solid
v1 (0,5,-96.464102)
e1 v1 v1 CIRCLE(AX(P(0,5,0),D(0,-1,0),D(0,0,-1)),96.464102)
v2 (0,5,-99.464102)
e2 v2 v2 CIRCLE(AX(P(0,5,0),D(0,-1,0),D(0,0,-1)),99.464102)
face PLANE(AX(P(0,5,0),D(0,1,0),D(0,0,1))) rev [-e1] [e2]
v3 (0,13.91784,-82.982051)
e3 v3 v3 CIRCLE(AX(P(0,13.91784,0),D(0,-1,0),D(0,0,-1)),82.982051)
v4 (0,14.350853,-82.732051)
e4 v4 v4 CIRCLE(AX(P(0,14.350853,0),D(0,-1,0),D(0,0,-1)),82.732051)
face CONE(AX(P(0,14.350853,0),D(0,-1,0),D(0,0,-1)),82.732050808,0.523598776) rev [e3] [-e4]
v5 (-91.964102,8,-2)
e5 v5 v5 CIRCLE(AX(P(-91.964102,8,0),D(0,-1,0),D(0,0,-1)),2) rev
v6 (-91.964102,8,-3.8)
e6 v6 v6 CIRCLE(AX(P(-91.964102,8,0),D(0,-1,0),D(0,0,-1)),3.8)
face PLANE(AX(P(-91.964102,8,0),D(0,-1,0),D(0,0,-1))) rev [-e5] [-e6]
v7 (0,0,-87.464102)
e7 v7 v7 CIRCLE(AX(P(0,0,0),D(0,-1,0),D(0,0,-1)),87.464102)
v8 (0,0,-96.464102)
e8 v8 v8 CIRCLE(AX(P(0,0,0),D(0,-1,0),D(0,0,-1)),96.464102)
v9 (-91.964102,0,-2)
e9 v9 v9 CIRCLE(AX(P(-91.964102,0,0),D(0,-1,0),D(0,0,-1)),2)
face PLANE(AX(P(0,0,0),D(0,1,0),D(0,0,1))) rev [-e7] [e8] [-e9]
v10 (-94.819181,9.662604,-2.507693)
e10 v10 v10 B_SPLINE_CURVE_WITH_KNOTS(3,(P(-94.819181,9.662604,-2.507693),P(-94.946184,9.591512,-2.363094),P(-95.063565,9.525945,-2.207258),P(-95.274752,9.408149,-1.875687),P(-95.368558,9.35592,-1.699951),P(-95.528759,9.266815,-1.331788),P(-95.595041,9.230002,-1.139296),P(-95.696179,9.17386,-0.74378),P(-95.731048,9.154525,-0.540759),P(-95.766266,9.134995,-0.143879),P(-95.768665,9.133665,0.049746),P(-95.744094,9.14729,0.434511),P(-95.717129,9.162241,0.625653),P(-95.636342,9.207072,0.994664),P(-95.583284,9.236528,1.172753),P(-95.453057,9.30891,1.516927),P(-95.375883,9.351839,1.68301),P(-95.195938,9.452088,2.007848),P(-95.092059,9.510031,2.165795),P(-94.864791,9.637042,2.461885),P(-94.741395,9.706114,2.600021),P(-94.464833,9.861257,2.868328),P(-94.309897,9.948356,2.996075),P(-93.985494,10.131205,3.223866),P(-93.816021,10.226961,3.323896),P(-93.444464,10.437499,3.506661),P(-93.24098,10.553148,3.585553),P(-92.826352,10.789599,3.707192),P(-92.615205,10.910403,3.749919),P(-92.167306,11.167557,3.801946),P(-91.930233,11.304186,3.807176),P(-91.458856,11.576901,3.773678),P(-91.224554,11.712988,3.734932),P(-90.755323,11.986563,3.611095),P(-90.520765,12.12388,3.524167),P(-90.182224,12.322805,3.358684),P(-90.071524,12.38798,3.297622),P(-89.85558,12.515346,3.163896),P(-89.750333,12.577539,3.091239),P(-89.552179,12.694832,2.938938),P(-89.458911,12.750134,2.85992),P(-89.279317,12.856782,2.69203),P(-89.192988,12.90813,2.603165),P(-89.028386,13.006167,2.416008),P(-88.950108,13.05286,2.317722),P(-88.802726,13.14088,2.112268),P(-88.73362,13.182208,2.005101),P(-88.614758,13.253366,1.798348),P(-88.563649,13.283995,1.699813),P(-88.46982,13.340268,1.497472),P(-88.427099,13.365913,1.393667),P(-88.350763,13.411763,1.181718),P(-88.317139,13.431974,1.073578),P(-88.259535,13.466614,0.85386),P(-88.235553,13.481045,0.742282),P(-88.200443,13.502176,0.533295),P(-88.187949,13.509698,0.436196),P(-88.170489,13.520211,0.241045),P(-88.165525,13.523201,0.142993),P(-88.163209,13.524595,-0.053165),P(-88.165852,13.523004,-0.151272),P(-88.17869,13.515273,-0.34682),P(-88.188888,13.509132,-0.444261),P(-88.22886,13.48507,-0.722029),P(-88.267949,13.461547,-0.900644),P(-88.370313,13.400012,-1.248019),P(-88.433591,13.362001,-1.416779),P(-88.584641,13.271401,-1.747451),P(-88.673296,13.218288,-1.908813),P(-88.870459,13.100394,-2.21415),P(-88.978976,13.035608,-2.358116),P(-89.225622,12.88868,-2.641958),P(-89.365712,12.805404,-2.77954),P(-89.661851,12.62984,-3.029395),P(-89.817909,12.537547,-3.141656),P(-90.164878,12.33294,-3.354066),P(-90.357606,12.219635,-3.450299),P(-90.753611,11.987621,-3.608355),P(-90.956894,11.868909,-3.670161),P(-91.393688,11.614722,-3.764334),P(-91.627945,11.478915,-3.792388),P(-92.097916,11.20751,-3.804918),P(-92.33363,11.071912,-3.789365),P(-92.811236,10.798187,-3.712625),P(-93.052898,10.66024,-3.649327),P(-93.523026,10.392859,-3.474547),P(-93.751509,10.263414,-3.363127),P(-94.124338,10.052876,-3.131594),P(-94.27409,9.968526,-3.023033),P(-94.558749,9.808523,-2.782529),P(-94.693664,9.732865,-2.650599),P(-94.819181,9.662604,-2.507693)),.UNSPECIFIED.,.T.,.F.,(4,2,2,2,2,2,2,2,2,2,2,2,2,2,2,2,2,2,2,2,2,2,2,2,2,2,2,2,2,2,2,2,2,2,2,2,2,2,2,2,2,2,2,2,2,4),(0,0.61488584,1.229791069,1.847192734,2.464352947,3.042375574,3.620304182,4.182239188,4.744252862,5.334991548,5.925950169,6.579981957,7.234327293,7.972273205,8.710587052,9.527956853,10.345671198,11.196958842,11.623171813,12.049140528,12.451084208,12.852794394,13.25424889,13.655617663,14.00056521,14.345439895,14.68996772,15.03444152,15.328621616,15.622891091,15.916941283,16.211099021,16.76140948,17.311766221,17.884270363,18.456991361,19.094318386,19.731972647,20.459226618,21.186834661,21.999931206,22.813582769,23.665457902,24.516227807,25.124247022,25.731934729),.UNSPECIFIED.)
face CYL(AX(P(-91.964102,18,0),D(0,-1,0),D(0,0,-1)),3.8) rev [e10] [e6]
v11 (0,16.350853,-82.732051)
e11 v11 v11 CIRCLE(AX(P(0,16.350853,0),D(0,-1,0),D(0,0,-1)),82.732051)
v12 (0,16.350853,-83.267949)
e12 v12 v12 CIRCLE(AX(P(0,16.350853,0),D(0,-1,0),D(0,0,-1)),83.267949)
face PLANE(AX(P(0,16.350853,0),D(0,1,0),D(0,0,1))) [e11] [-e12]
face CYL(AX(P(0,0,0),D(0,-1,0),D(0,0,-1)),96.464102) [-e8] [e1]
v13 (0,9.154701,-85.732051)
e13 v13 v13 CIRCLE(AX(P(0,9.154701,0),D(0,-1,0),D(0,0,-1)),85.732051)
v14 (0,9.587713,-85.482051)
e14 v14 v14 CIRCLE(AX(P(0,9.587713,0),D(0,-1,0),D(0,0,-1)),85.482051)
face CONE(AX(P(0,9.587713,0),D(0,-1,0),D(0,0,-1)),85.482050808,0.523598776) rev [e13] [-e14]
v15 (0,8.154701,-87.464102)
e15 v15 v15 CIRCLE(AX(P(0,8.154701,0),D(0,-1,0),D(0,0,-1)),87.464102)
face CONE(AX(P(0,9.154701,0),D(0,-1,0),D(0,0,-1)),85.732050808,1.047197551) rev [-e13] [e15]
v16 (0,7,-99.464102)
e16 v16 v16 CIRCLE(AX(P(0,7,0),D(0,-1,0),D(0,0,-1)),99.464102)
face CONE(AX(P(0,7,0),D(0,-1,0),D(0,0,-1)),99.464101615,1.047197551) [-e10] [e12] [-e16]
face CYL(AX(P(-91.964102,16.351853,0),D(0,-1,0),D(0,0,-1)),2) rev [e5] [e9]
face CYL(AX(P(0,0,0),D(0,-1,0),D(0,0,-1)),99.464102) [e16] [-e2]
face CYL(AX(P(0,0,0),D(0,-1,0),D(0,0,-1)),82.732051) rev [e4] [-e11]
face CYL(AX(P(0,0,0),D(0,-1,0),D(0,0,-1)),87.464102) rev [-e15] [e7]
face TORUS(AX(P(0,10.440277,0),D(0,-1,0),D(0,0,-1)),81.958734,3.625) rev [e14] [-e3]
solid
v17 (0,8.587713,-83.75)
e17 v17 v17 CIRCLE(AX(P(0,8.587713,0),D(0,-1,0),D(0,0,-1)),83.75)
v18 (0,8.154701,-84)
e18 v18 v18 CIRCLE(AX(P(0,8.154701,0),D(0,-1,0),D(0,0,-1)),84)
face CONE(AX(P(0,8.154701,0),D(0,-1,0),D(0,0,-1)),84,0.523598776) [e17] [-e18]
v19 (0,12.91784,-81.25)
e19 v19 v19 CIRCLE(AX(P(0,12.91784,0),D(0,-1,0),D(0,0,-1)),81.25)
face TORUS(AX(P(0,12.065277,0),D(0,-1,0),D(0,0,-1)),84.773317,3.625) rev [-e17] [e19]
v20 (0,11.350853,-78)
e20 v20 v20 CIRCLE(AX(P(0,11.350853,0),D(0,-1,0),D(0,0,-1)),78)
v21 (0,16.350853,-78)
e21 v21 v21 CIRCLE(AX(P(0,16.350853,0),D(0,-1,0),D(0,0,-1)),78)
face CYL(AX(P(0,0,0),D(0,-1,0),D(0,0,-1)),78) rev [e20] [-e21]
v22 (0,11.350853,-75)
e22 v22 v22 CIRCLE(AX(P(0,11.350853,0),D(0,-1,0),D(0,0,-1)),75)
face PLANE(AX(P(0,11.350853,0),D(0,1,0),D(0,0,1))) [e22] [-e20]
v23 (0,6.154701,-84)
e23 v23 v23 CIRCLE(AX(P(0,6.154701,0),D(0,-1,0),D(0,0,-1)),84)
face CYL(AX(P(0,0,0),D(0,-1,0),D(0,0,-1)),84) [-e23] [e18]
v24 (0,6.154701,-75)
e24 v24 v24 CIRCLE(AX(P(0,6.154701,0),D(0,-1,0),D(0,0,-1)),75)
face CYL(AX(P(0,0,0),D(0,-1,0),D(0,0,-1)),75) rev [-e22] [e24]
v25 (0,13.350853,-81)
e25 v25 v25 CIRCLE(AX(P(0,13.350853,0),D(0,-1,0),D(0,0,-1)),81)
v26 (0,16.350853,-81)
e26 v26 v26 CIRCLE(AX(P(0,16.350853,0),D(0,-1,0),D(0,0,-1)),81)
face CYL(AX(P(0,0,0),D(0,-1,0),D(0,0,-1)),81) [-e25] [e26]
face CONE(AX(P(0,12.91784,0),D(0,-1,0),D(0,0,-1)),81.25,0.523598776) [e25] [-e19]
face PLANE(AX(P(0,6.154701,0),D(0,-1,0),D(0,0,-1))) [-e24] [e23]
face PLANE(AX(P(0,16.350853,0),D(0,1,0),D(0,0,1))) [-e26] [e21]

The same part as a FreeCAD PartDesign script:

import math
import FreeCAD as App
import Part
import Sketcher
from FreeCAD import Vector
Q = App.Units.Quantity

doc = App.newDocument("Part")
body = doc.addObject("PartDesign::Body", "Body")

# Sketch on XY plane
sketch1 = body.newObject("Sketcher::SketchObject", "Sketch")
sketch1.AttachmentSupport = (doc.getObject("XY_Plane"), [""])
sketch1.MapMode = "FlatFace"
sketch1.addGeometry(Part.LineSegment(Vector(-83.3, 16.4, 0), Vector(-99.5, 7, 0)), False)
sketch1.addGeometry(Part.LineSegment(Vector(-99.5, 7, 0), Vector(-99.5, 5, 0)), False)
sketch1.addGeometry(Part.LineSegment(Vector(-99.5, 5, 0), Vector(-96.5, 5, 0)), False)
sketch1.addGeometry(Part.LineSegment(Vector(-96.5, 5, 0), Vector(-96.5, 0, 0)), False)
sketch1.addGeometry(Part.LineSegment(Vector(-96.5, 0, 0), Vector(-87.5, 0, 0)), False)
sketch1.addGeometry(Part.LineSegment(Vector(-87.5, 0, 0), Vector(-87.5, 8.2, 0)), False)
sketch1.addGeometry(Part.LineSegment(Vector(-87.5, 8.2, 0), Vector(-85.7, 9.2, 0)), False)
sketch1.addGeometry(Part.LineSegment(Vector(-85.7, 9.2, 0), Vector(-85.5, 9.6, 0)), False)
sketch1.addGeometry(Part.ArcOfCircle(Part.Circle(Vector(-82, 10.4, 0), Vector(0, 0, 1), 3.6), math.radians(106), math.radians(194)), False)
sketch1.addGeometry(Part.LineSegment(Vector(-83, 13.9, 0), Vector(-82.7, 14.4, 0)), False)
sketch1.addGeometry(Part.LineSegment(Vector(-82.7, 14.4, 0), Vector(-82.7, 16.4, 0)), False)
sketch1.addGeometry(Part.LineSegment(Vector(-82.7, 16.4, 0), Vector(-83.3, 16.4, 0)), False)
sketch1.addConstraint(Sketcher.Constraint("Coincident", 0, 2, 1, 1))
sketch1.addConstraint(Sketcher.Constraint("Coincident", 1, 2, 2, 1))
sketch1.addConstraint(Sketcher.Constraint("Coincident", 2, 2, 3, 1))
sketch1.addConstraint(Sketcher.Constraint("Coincident", 3, 2, 4, 1))
sketch1.addConstraint(Sketcher.Constraint("Coincident", 4, 2, 5, 1))
sketch1.addConstraint(Sketcher.Constraint("Coincident", 5, 2, 6, 1))
sketch1.addConstraint(Sketcher.Constraint("Coincident", 6, 2, 7, 1))
sketch1.addConstraint(Sketcher.Constraint("Coincident", 7, 2, 8, 2))
sketch1.addConstraint(Sketcher.Constraint("Coincident", 8, 1, 9, 1))
sketch1.addConstraint(Sketcher.Constraint("Coincident", 9, 2, 10, 1))
sketch1.addConstraint(Sketcher.Constraint("Coincident", 10, 2, 11, 1))
sketch1.addConstraint(Sketcher.Constraint("Coincident", 11, 2, 0, 1))
sketch1.addConstraint(Sketcher.Constraint("Vertical", 1))
sketch1.addConstraint(Sketcher.Constraint("Horizontal", 2))
sketch1.addConstraint(Sketcher.Constraint("Vertical", 3))
sketch1.addConstraint(Sketcher.Constraint("Horizontal", 4))
sketch1.addConstraint(Sketcher.Constraint("Vertical", 5))
sketch1.addConstraint(Sketcher.Constraint("Vertical", 10))
sketch1.addConstraint(Sketcher.Constraint("Horizontal", 11))
sketch1.addConstraint(Sketcher.Constraint("PointOnObject", 3, 2, -1))
sketch1.addConstraint(Sketcher.Constraint("Parallel", 0, 6))
sketch1.addConstraint(Sketcher.Constraint("Parallel", 7, 9))
sketch1.addConstraint(Sketcher.Constraint("Equal", 1, 10))
sketch1.addConstraint(Sketcher.Constraint("Equal", 7, 9))
sketch1.addConstraint(Sketcher.Constraint("DistanceX", 2, 1, 2, 2, 3.0))
sketch1.addConstraint(Sketcher.Constraint("DistanceX", 4, 1, 4, 2, 9.0))
sketch1.addConstraint(Sketcher.Constraint("DistanceY", 1, 2, 1, 1, 2.0))
sketch1.addConstraint(Sketcher.Constraint("DistanceY", 3, 2, 3, 1, 5.0))
sketch1.addConstraint(Sketcher.Constraint("Angle", 0, Q("-150 deg")))
sketch1.addConstraint(Sketcher.Constraint("Angle", 7, Q("60 deg")))
sketch1.addConstraint(Sketcher.Constraint("Distance", 6, 2.0))
sketch1.addConstraint(Sketcher.Constraint("Radius", 8, 3.625))
sketch1.addConstraint(Sketcher.Constraint("DistanceX", 6, 2, 9, 2, 3.0))
sketch1.addConstraint(Sketcher.Constraint("Distance", 7, 0.5))
sketch1.addConstraint(Sketcher.Constraint("DistanceX", 11, 2, 11, 1, 0.535898))
sketch1.addConstraint(Sketcher.Constraint("DistanceY", 5, 1, 5, 2, 8.154701))
sketch1.addConstraint(Sketcher.Constraint("DistanceX", 0, 2, -1, 1, 99.464102))
revolution = body.newObject("PartDesign::Revolution", "Revolution")
revolution.Profile = sketch1
revolution.ReferenceAxis = (sketch1, ["V_Axis"])
revolution.Angle = 360

# Sketch on XZ plane
sketch2 = body.newObject("Sketcher::SketchObject", "Sketch001")
sketch2.AttachmentSupport = (doc.getObject("XZ_Plane"), [""])
sketch2.MapMode = "FlatFace"
sketch2.addGeometry(Part.Circle(Vector(-92, 0, 0), Vector(0, 0, 1), 2), False)
sketch2.addConstraint(Sketcher.Constraint("PointOnObject", 0, 3, -1))
sketch2.addConstraint(Sketcher.Constraint("Diameter", 0, 4.0))
sketch2.addConstraint(Sketcher.Constraint("DistanceX", 0, 3, -1, 1, 91.964102))
pocket1 = body.newObject("PartDesign::Pocket", "Pocket")
pocket1.Profile = sketch2
pocket1.Type = "UpToFirst"

# Sketch on XZ plane
sketch3 = body.newObject("Sketcher::SketchObject", "Sketch002")
sketch3.AttachmentSupport = (doc.getObject("XZ_Plane"), [""])
sketch3.MapMode = "FlatFace"
sketch3.AttachmentOffset = App.Placement(Vector(0, 0, -8), App.Rotation())
sketch3.addGeometry(Part.Circle(Vector(-92, 0, 0), Vector(0, 0, 1), 3.8), False)
sketch3.addConstraint(Sketcher.Constraint("PointOnObject", 0, 3, -1))
sketch3.addConstraint(Sketcher.Constraint("Diameter", 0, 7.6))
sketch3.addConstraint(Sketcher.Constraint("DistanceX", 0, 3, -1, 1, 91.964102))
pocket2 = body.newObject("PartDesign::Pocket", "Pocket001")
pocket2.Profile = sketch3
pocket2.Length = 10
body2 = doc.addObject("PartDesign::Body", "Body001")

# Sketch on XY plane
sketch4 = body2.newObject("Sketcher::SketchObject", "Sketch003")
sketch4.AttachmentSupport = (doc.getObject("XY_Plane001"), [""])
sketch4.MapMode = "FlatFace"
sketch4.addGeometry(Part.LineSegment(Vector(-83.8, 8.6, 0), Vector(-84, 8.2, 0)), False)
sketch4.addGeometry(Part.LineSegment(Vector(-84, 8.2, 0), Vector(-84, 6.2, 0)), False)
sketch4.addGeometry(Part.LineSegment(Vector(-84, 6.2, 0), Vector(-75, 6.2, 0)), False)
sketch4.addGeometry(Part.LineSegment(Vector(-75, 6.2, 0), Vector(-75, 11.4, 0)), False)
sketch4.addGeometry(Part.LineSegment(Vector(-75, 11.4, 0), Vector(-78, 11.4, 0)), False)
sketch4.addGeometry(Part.LineSegment(Vector(-78, 11.4, 0), Vector(-78, 16.4, 0)), False)
sketch4.addGeometry(Part.LineSegment(Vector(-78, 16.4, 0), Vector(-81, 16.4, 0)), False)
sketch4.addGeometry(Part.LineSegment(Vector(-81, 16.4, 0), Vector(-81, 13.4, 0)), False)
sketch4.addGeometry(Part.LineSegment(Vector(-81, 13.4, 0), Vector(-81.2, 12.9, 0)), False)
sketch4.addGeometry(Part.ArcOfCircle(Part.Circle(Vector(-84.8, 12.1, 0), Vector(0, 0, 1), 3.6), math.radians(-74), math.radians(14)), False)
sketch4.addConstraint(Sketcher.Constraint("Coincident", 0, 2, 1, 1))
sketch4.addConstraint(Sketcher.Constraint("Coincident", 1, 2, 2, 1))
sketch4.addConstraint(Sketcher.Constraint("Coincident", 2, 2, 3, 1))
sketch4.addConstraint(Sketcher.Constraint("Coincident", 3, 2, 4, 1))
sketch4.addConstraint(Sketcher.Constraint("Coincident", 4, 2, 5, 1))
sketch4.addConstraint(Sketcher.Constraint("Coincident", 5, 2, 6, 1))
sketch4.addConstraint(Sketcher.Constraint("Coincident", 6, 2, 7, 1))
sketch4.addConstraint(Sketcher.Constraint("Coincident", 7, 2, 8, 1))
sketch4.addConstraint(Sketcher.Constraint("Coincident", 8, 2, 9, 2))
sketch4.addConstraint(Sketcher.Constraint("Coincident", 9, 1, 0, 1))
sketch4.addConstraint(Sketcher.Constraint("Vertical", 1))
sketch4.addConstraint(Sketcher.Constraint("Horizontal", 2))
sketch4.addConstraint(Sketcher.Constraint("Vertical", 3))
sketch4.addConstraint(Sketcher.Constraint("Horizontal", 4))
sketch4.addConstraint(Sketcher.Constraint("Vertical", 5))
sketch4.addConstraint(Sketcher.Constraint("Horizontal", 6))
sketch4.addConstraint(Sketcher.Constraint("Vertical", 7))
sketch4.addConstraint(Sketcher.Constraint("Parallel", 0, 8))
sketch4.addConstraint(Sketcher.Constraint("Equal", 4, 6))
sketch4.addConstraint(Sketcher.Constraint("Equal", 6, 7))
sketch4.addConstraint(Sketcher.Constraint("Equal", 0, 8))
sketch4.addConstraint(Sketcher.Constraint("DistanceX", 2, 1, 2, 2, 9.0))
sketch4.addConstraint(Sketcher.Constraint("DistanceX", 4, 2, 4, 1, 3.0))
sketch4.addConstraint(Sketcher.Constraint("DistanceY", 1, 2, 1, 1, 2.0))
sketch4.addConstraint(Sketcher.Constraint("DistanceY", 5, 1, 5, 2, 5.0))
sketch4.addConstraint(Sketcher.Constraint("Angle", 0, Q("-120 deg")))
sketch4.addConstraint(Sketcher.Constraint("DistanceX", 0, 2, -1, 1, 84.0))
sketch4.addConstraint(Sketcher.Constraint("Radius", 9, 3.625))
sketch4.addConstraint(Sketcher.Constraint("Distance", 0, 0.5))
sketch4.addConstraint(Sketcher.Constraint("DistanceY", -1, 1, 0, 2, 8.154701))
sketch4.addConstraint(Sketcher.Constraint("DistanceY", 3, 1, 3, 2, 5.196152))
revolution2 = body2.newObject("PartDesign::Revolution", "Revolution001")
revolution2.Profile = sketch4
revolution2.ReferenceAxis = (sketch4, ["V_Axis"])
revolution2.Angle = 360

doc.recompute()
